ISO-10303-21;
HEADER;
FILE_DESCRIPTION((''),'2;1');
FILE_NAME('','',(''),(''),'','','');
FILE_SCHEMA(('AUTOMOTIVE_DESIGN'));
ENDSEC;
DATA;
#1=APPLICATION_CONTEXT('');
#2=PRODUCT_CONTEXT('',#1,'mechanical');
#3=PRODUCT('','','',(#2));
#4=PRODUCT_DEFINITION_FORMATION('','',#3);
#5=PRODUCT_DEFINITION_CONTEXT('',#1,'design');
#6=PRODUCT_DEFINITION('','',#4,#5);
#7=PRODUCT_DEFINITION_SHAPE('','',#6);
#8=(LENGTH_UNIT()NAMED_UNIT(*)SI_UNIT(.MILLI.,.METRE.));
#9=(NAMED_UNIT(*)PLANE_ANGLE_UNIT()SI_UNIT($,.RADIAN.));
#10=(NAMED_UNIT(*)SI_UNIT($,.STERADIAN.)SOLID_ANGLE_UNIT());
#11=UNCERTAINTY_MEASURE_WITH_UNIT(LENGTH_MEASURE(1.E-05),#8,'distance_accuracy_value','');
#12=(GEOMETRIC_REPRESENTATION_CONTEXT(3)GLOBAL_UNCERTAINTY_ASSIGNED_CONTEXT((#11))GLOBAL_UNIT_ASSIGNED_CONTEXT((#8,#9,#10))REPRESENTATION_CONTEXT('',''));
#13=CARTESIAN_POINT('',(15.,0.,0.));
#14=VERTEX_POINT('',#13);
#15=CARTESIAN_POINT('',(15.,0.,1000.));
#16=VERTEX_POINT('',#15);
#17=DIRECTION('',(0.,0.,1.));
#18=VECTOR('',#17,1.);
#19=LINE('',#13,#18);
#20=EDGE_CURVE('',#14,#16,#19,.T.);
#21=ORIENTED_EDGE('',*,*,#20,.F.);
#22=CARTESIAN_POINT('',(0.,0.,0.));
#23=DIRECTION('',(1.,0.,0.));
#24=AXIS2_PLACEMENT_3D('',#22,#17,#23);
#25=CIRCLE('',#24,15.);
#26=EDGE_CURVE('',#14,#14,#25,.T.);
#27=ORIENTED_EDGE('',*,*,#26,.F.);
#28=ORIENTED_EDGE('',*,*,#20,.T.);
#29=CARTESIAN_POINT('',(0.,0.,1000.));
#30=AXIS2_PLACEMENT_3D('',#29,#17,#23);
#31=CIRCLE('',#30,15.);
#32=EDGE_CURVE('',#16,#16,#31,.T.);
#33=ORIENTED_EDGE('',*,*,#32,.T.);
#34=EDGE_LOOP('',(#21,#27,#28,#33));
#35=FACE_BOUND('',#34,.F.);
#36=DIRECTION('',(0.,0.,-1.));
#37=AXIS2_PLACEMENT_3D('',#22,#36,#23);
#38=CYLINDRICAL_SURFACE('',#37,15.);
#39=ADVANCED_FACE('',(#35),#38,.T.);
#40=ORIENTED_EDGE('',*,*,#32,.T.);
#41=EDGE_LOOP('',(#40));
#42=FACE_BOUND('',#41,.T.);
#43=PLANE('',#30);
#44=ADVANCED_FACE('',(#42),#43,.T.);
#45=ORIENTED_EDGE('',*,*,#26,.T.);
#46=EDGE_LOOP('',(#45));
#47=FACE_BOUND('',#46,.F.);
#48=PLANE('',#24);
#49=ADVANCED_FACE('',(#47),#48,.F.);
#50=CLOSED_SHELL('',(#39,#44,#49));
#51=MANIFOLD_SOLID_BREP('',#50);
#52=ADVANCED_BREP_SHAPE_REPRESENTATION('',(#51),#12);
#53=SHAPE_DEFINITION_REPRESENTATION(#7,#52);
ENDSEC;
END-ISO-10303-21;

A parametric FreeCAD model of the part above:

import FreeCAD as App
import Part
import Sketcher
from FreeCAD import Vector

doc = App.newDocument("Part")
body = doc.addObject("PartDesign::Body", "Body")

# Sketch on XY plane
sketch1 = body.newObject("Sketcher::SketchObject", "Sketch")
sketch1.AttachmentSupport = (doc.getObject("XY_Plane"), [""])
sketch1.MapMode = "FlatFace"
sketch1.addGeometry(Part.Circle(Vector(0, 0, 0), Vector(0, 0, 1), 15), False)
sketch1.addConstraint([
    Sketcher.Constraint("Coincident", 0, 3, -1, 1),
    Sketcher.Constraint("Diameter", 0, 30.0),
])
pad1 = body.newObject("PartDesign::Pad", "Pad")
pad1.Profile = sketch1
pad1.Length = 1000

doc.recompute()
